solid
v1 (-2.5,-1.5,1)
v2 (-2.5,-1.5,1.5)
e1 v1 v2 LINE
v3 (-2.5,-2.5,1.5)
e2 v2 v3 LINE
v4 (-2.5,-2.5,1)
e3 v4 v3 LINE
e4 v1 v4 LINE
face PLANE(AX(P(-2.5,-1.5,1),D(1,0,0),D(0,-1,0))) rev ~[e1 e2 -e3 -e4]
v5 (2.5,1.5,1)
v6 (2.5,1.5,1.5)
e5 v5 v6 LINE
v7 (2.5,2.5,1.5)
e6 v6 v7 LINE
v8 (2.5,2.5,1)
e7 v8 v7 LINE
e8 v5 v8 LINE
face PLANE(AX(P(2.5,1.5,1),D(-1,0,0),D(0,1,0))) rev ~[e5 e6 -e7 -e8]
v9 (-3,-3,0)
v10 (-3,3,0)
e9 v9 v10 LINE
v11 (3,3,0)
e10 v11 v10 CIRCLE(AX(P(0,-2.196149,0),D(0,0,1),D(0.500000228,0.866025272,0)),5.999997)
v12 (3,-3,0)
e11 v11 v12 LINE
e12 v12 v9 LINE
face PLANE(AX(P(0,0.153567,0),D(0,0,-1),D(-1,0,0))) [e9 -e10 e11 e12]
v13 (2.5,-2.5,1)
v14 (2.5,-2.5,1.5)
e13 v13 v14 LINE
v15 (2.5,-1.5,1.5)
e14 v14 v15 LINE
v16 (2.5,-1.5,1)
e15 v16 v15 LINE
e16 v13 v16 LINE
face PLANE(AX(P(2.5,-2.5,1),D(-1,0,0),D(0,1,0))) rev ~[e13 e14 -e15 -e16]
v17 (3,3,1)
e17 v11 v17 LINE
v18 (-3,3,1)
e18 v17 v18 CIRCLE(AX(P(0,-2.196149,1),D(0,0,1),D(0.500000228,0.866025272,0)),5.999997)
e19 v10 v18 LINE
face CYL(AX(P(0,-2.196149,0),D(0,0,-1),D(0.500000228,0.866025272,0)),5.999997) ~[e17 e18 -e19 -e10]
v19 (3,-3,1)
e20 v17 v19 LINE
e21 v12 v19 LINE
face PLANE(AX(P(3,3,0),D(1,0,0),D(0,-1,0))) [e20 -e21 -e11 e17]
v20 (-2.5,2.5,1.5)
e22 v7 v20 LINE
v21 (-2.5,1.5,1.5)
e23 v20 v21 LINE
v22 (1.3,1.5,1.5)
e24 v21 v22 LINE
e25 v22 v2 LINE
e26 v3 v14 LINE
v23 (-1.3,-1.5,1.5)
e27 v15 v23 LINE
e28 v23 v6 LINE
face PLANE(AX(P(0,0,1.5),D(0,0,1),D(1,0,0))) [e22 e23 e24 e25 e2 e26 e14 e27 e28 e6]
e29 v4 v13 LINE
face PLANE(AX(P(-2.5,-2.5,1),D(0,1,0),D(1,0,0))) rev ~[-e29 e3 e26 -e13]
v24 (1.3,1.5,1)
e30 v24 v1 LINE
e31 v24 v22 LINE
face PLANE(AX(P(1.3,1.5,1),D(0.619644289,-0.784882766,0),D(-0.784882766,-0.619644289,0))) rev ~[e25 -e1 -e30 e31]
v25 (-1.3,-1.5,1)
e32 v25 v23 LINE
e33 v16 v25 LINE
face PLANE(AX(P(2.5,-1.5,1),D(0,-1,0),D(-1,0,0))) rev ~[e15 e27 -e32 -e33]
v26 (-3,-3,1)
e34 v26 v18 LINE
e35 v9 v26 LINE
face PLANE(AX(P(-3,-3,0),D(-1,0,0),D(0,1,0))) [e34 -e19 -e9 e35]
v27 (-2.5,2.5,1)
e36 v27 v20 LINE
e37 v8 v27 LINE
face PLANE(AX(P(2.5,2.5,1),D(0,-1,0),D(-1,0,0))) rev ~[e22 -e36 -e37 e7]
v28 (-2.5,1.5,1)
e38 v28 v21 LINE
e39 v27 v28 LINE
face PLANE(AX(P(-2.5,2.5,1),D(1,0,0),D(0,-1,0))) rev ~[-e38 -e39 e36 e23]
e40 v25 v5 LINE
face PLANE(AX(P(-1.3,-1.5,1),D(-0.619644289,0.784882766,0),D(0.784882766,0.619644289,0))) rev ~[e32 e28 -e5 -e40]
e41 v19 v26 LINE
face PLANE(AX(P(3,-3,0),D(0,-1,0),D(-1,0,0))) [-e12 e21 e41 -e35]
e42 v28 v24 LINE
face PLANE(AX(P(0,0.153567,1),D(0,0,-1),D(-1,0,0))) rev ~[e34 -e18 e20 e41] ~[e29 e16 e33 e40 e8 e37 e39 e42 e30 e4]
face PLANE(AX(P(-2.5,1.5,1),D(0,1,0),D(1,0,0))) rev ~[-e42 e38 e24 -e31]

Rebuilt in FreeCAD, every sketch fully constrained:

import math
import FreeCAD as App
import Part
import Sketcher


def add_polygon(sketch, points):
    """Adds a closed chain of lines whose ends are joined by coincident constraints."""
    first, n = sketch.GeometryCount, len(points)
    for a, b in zip(points, points[1:] + points[:1]):
        sketch.addGeometry(Part.LineSegment(App.Vector(*a, 0), App.Vector(*b, 0)), False)
    for i in range(n):
        sketch.addConstraint(Sketcher.Constraint("Coincident", first + i, 2, first + (i + 1) % n, 1))

doc = App.newDocument("Part")
body = doc.addObject("PartDesign::Body", "Body")

sketch1 = doc.addObject("Sketcher::SketchObject", "Sketch")
body.addObject(sketch1)
sketch1.AttachmentSupport = (doc.XY_Plane, [""])
sketch1.MapMode = "FlatFace"
sketch1.addGeometry([
    Part.LineSegment(App.Vector(3, -3, 0), App.Vector(3, 3, 0)),
    Part.ArcOfCircle(Part.Circle(App.Vector(0, -2, 0), App.Vector(0, 0, 1), 6), math.radians(60), math.radians(120)),
    Part.LineSegment(App.Vector(-3, 3, 0), App.Vector(-3, -3, 0)),
    Part.LineSegment(App.Vector(-3, -3, 0), App.Vector(3, -3, 0)),
], False)
sketch1.addConstraint([
    Sketcher.Constraint("Coincident", 0, 2, 1, 1),
    Sketcher.Constraint("Coincident", 1, 2, 2, 1),
    Sketcher.Constraint("Coincident", 2, 2, 3, 1),
    Sketcher.Constraint("Coincident", 3, 2, 0, 1),
    Sketcher.Constraint("Vertical", 0),
    Sketcher.Constraint("Vertical", 2),
    Sketcher.Constraint("Horizontal", 3),
    Sketcher.Constraint("Symmetric", 0, 2, 2, 2, -1, 1),
    Sketcher.Constraint("PointOnObject", 1, 3, -2),
    Sketcher.Constraint("Equal", 3, 0),
    Sketcher.Constraint("DistanceX", 3, 1, 3, 2, 6.0),
    Sketcher.Constraint("Radius", 1, 5.999997),
])
pad1 = doc.addObject("PartDesign::Pad", "Pad")
body.addObject(pad1)
pad1.Profile = sketch1
pad1.Length = 1

sketch2 = doc.addObject("Sketcher::SketchObject", "Sketch001")
body.addObject(sketch2)
sketch2.AttachmentSupport = (doc.XY_Plane, [""])
sketch2.MapMode = "FlatFace"
sketch2.AttachmentOffset = App.Placement(App.Vector(0, 0, 1), App.Rotation())
add_polygon(sketch2, [(-2.5, 2.5), (-2.5, 1.5), (1.3, 1.5), (-2.5, -1.5), (-2.5, -2.5), (2.5, -2.5), (2.5, -1.5), (-1.3, -1.5), (2.5, 1.5), (2.5, 2.5)])
sketch2.addConstraint([
    Sketcher.Constraint("Vertical", 0),
    Sketcher.Constraint("Horizontal", 1),
    Sketcher.Constraint("Vertical", 3),
    Sketcher.Constraint("Horizontal", 4),
    Sketcher.Constraint("Vertical", 5),
    Sketcher.Constraint("Horizontal", 6),
    Sketcher.Constraint("Vertical", 8),
    Sketcher.Constraint("Horizontal", 9),
    Sketcher.Constraint("Symmetric", 0, 2, 5, 2, -1, 1),
    Sketcher.Constraint("Symmetric", 2, 2, 7, 2, -1, 1),
    Sketcher.Constraint("Symmetric", 2, 2, 5, 2, -2),
    Sketcher.Constraint("Parallel", 2, 7),
    Sketcher.Constraint("Equal", 0, 3),
    Sketcher.Constraint("DistanceX", 4, 1, 4, 2, 5.0),
    Sketcher.Constraint("DistanceY", 0, 2, 0, 1, 1.0),
    Sketcher.Constraint("DistanceX", 1, 1, 1, 2, 3.8),
    Sketcher.Constraint("DistanceY", 2, 2, 0, 2, 3.0),
])
pad2 = doc.addObject("PartDesign::Pad", "Pad001")
body.addObject(pad2)
pad2.Profile = sketch2
pad2.Length = 0.5

doc.recompute()
